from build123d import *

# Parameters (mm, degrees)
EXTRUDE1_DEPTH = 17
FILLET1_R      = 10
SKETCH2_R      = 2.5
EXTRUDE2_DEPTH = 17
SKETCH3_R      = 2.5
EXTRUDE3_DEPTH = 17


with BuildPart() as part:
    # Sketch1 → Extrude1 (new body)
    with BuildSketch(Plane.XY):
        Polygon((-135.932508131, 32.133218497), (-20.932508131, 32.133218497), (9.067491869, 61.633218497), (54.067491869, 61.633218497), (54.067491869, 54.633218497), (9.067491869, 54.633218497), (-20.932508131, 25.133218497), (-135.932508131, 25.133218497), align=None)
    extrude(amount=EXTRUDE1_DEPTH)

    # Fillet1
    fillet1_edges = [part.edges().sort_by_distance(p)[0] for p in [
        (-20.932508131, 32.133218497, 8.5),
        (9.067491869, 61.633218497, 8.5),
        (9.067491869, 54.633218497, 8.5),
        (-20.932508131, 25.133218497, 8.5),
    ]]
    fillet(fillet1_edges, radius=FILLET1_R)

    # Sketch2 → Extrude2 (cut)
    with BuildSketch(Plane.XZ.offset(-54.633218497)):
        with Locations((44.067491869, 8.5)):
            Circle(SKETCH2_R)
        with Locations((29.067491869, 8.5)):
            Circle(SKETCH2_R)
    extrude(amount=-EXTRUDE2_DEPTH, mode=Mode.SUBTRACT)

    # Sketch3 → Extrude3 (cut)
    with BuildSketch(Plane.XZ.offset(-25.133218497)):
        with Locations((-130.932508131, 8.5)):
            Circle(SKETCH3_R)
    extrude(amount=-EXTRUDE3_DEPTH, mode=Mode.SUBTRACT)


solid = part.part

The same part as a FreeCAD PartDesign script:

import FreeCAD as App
import Part
import Sketcher
from FreeCAD import Vector
Q = App.Units.Quantity


def edges_at(feature, points):
    """Names of the edges that pass closest to the given points."""
    edges = feature.Shape.Edges
    near = lambda p: min(range(len(edges)), key=lambda i: edges[i].distToShape(Part.Vertex(*p))[0])
    return sorted({f"Edge{near(p) + 1}" for p in points})


def add_polygon(sketch, points):
    """Adds a closed chain of lines whose ends are joined by coincident constraints."""
    first, n = sketch.GeometryCount, len(points)
    for a, b in zip(points, points[1:] + points[:1]):
        sketch.addGeometry(Part.LineSegment(App.Vector(*a, 0), App.Vector(*b, 0)), False)
    for i in range(n):
        sketch.addConstraint(Sketcher.Constraint("Coincident", first + i, 2, first + (i + 1) % n, 1))

doc = App.newDocument("Part")
body = doc.addObject("PartDesign::Body", "Body")

# Sketch on XY plane
sketch1 = body.newObject("Sketcher::SketchObject", "Sketch")
sketch1.AttachmentSupport = (doc.getObject("XY_Plane"), [""])
sketch1.MapMode = "FlatFace"
add_polygon(sketch1, [(-21, 32), (-136, 32), (-136, 25), (-21, 25), (9, 55), (54, 55), (54, 62), (9, 62)])  # lines 0-7
sketch1.addConstraint([
    Sketcher.Constraint("Horizontal", 0),
    Sketcher.Constraint("Vertical", 1),
    Sketcher.Constraint("Horizontal", 2),
    Sketcher.Constraint("Horizontal", 4),
    Sketcher.Constraint("Vertical", 5),
    Sketcher.Constraint("Horizontal", 6),
    Sketcher.Constraint("Parallel", 3, 7),
    Sketcher.Constraint("Vertical", 3, 2, 6, 2),
    Sketcher.Constraint("Vertical", 2, 2, 7, 2),
    Sketcher.Constraint("DistanceX", 0, 2, 0, 1, Q("115 mm")),
    Sketcher.Constraint("DistanceX", 4, 1, 4, 2, Q("45 mm")),
    Sketcher.Constraint("DistanceY", 1, 2, 1, 1, Q("7 mm")),
    Sketcher.Constraint("DistanceX", 2, 2, 3, 2, Q("30 mm")),
    Sketcher.Constraint("DistanceY", 2, 2, 3, 2, Q("29.5 mm")),
    Sketcher.Constraint("DistanceX", 0, 2, -1, 1, Q("135.932508 mm")),
    Sketcher.Constraint("DistanceY", -1, 1, 0, 2, Q("32.133218 mm")),
])
pad1 = body.newObject("PartDesign::Pad", "Pad")
pad1.Profile = sketch1
pad1.Length = 17
doc.recompute()

fillet = body.newObject("PartDesign::Fillet", "Fillet")
fillet.Base = (pad1, edges_at(pad1, [
    (-20.933, 32.133, 8.5),
    (9.067, 61.633, 8.5),
    (9.067, 54.633, 8.5),
    (-20.933, 25.133, 8.5),
]))
fillet.Radius = 10

# Sketch on XZ plane
sketch2 = body.newObject("Sketcher::SketchObject", "Sketch001")
sketch2.AttachmentSupport = (doc.getObject("XZ_Plane"), [""])
sketch2.MapMode = "FlatFace"
sketch2.AttachmentOffset = App.Placement(Vector(0, 0, -54.633218), App.Rotation())
sketch2.addGeometry([
    Part.Circle(Vector(44.1, 8.5, 0), Vector(0, 0, 1), 2.5),
    Part.Circle(Vector(29.1, 8.5, 0), Vector(0, 0, 1), 2.5),
], False)
sketch2.addConstraint([
    Sketcher.Constraint("Equal", 0, 1),
    Sketcher.Constraint("Horizontal", 0, 3, 1, 3),
    Sketcher.Constraint("Diameter", 0, Q("5 mm")),
    Sketcher.Constraint("DistanceX", 1, 3, 0, 3, Q("15 mm")),
    Sketcher.Constraint("DistanceY", -1, 1, 0, 3, Q("8.5 mm")),
    Sketcher.Constraint("DistanceX", -1, 1, 0, 3, Q("44.067492 mm")),
])
pocket1 = body.newObject("PartDesign::Pocket", "Pocket")
pocket1.Profile = sketch2
pocket1.Length = 17

# Sketch on XZ plane
sketch3 = body.newObject("Sketcher::SketchObject", "Sketch002")
sketch3.AttachmentSupport = (doc.getObject("XZ_Plane"), [""])
sketch3.MapMode = "FlatFace"
sketch3.AttachmentOffset = App.Placement(Vector(0, 0, -25.133218), App.Rotation())
sketch3.addGeometry(Part.Circle(Vector(-130.9, 8.5, 0), Vector(0, 0, 1), 2.5), False)
sketch3.addConstraint([
    Sketcher.Constraint("Diameter", 0, Q("5 mm")),
    Sketcher.Constraint("DistanceY", -1, 1, 0, 3, Q("8.5 mm")),
    Sketcher.Constraint("DistanceX", 0, 3, -1, 1, Q("130.932508 mm")),
])
pocket2 = body.newObject("PartDesign::Pocket", "Pocket001")
pocket2.Profile = sketch3
pocket2.Length = 17

doc.recompute()
